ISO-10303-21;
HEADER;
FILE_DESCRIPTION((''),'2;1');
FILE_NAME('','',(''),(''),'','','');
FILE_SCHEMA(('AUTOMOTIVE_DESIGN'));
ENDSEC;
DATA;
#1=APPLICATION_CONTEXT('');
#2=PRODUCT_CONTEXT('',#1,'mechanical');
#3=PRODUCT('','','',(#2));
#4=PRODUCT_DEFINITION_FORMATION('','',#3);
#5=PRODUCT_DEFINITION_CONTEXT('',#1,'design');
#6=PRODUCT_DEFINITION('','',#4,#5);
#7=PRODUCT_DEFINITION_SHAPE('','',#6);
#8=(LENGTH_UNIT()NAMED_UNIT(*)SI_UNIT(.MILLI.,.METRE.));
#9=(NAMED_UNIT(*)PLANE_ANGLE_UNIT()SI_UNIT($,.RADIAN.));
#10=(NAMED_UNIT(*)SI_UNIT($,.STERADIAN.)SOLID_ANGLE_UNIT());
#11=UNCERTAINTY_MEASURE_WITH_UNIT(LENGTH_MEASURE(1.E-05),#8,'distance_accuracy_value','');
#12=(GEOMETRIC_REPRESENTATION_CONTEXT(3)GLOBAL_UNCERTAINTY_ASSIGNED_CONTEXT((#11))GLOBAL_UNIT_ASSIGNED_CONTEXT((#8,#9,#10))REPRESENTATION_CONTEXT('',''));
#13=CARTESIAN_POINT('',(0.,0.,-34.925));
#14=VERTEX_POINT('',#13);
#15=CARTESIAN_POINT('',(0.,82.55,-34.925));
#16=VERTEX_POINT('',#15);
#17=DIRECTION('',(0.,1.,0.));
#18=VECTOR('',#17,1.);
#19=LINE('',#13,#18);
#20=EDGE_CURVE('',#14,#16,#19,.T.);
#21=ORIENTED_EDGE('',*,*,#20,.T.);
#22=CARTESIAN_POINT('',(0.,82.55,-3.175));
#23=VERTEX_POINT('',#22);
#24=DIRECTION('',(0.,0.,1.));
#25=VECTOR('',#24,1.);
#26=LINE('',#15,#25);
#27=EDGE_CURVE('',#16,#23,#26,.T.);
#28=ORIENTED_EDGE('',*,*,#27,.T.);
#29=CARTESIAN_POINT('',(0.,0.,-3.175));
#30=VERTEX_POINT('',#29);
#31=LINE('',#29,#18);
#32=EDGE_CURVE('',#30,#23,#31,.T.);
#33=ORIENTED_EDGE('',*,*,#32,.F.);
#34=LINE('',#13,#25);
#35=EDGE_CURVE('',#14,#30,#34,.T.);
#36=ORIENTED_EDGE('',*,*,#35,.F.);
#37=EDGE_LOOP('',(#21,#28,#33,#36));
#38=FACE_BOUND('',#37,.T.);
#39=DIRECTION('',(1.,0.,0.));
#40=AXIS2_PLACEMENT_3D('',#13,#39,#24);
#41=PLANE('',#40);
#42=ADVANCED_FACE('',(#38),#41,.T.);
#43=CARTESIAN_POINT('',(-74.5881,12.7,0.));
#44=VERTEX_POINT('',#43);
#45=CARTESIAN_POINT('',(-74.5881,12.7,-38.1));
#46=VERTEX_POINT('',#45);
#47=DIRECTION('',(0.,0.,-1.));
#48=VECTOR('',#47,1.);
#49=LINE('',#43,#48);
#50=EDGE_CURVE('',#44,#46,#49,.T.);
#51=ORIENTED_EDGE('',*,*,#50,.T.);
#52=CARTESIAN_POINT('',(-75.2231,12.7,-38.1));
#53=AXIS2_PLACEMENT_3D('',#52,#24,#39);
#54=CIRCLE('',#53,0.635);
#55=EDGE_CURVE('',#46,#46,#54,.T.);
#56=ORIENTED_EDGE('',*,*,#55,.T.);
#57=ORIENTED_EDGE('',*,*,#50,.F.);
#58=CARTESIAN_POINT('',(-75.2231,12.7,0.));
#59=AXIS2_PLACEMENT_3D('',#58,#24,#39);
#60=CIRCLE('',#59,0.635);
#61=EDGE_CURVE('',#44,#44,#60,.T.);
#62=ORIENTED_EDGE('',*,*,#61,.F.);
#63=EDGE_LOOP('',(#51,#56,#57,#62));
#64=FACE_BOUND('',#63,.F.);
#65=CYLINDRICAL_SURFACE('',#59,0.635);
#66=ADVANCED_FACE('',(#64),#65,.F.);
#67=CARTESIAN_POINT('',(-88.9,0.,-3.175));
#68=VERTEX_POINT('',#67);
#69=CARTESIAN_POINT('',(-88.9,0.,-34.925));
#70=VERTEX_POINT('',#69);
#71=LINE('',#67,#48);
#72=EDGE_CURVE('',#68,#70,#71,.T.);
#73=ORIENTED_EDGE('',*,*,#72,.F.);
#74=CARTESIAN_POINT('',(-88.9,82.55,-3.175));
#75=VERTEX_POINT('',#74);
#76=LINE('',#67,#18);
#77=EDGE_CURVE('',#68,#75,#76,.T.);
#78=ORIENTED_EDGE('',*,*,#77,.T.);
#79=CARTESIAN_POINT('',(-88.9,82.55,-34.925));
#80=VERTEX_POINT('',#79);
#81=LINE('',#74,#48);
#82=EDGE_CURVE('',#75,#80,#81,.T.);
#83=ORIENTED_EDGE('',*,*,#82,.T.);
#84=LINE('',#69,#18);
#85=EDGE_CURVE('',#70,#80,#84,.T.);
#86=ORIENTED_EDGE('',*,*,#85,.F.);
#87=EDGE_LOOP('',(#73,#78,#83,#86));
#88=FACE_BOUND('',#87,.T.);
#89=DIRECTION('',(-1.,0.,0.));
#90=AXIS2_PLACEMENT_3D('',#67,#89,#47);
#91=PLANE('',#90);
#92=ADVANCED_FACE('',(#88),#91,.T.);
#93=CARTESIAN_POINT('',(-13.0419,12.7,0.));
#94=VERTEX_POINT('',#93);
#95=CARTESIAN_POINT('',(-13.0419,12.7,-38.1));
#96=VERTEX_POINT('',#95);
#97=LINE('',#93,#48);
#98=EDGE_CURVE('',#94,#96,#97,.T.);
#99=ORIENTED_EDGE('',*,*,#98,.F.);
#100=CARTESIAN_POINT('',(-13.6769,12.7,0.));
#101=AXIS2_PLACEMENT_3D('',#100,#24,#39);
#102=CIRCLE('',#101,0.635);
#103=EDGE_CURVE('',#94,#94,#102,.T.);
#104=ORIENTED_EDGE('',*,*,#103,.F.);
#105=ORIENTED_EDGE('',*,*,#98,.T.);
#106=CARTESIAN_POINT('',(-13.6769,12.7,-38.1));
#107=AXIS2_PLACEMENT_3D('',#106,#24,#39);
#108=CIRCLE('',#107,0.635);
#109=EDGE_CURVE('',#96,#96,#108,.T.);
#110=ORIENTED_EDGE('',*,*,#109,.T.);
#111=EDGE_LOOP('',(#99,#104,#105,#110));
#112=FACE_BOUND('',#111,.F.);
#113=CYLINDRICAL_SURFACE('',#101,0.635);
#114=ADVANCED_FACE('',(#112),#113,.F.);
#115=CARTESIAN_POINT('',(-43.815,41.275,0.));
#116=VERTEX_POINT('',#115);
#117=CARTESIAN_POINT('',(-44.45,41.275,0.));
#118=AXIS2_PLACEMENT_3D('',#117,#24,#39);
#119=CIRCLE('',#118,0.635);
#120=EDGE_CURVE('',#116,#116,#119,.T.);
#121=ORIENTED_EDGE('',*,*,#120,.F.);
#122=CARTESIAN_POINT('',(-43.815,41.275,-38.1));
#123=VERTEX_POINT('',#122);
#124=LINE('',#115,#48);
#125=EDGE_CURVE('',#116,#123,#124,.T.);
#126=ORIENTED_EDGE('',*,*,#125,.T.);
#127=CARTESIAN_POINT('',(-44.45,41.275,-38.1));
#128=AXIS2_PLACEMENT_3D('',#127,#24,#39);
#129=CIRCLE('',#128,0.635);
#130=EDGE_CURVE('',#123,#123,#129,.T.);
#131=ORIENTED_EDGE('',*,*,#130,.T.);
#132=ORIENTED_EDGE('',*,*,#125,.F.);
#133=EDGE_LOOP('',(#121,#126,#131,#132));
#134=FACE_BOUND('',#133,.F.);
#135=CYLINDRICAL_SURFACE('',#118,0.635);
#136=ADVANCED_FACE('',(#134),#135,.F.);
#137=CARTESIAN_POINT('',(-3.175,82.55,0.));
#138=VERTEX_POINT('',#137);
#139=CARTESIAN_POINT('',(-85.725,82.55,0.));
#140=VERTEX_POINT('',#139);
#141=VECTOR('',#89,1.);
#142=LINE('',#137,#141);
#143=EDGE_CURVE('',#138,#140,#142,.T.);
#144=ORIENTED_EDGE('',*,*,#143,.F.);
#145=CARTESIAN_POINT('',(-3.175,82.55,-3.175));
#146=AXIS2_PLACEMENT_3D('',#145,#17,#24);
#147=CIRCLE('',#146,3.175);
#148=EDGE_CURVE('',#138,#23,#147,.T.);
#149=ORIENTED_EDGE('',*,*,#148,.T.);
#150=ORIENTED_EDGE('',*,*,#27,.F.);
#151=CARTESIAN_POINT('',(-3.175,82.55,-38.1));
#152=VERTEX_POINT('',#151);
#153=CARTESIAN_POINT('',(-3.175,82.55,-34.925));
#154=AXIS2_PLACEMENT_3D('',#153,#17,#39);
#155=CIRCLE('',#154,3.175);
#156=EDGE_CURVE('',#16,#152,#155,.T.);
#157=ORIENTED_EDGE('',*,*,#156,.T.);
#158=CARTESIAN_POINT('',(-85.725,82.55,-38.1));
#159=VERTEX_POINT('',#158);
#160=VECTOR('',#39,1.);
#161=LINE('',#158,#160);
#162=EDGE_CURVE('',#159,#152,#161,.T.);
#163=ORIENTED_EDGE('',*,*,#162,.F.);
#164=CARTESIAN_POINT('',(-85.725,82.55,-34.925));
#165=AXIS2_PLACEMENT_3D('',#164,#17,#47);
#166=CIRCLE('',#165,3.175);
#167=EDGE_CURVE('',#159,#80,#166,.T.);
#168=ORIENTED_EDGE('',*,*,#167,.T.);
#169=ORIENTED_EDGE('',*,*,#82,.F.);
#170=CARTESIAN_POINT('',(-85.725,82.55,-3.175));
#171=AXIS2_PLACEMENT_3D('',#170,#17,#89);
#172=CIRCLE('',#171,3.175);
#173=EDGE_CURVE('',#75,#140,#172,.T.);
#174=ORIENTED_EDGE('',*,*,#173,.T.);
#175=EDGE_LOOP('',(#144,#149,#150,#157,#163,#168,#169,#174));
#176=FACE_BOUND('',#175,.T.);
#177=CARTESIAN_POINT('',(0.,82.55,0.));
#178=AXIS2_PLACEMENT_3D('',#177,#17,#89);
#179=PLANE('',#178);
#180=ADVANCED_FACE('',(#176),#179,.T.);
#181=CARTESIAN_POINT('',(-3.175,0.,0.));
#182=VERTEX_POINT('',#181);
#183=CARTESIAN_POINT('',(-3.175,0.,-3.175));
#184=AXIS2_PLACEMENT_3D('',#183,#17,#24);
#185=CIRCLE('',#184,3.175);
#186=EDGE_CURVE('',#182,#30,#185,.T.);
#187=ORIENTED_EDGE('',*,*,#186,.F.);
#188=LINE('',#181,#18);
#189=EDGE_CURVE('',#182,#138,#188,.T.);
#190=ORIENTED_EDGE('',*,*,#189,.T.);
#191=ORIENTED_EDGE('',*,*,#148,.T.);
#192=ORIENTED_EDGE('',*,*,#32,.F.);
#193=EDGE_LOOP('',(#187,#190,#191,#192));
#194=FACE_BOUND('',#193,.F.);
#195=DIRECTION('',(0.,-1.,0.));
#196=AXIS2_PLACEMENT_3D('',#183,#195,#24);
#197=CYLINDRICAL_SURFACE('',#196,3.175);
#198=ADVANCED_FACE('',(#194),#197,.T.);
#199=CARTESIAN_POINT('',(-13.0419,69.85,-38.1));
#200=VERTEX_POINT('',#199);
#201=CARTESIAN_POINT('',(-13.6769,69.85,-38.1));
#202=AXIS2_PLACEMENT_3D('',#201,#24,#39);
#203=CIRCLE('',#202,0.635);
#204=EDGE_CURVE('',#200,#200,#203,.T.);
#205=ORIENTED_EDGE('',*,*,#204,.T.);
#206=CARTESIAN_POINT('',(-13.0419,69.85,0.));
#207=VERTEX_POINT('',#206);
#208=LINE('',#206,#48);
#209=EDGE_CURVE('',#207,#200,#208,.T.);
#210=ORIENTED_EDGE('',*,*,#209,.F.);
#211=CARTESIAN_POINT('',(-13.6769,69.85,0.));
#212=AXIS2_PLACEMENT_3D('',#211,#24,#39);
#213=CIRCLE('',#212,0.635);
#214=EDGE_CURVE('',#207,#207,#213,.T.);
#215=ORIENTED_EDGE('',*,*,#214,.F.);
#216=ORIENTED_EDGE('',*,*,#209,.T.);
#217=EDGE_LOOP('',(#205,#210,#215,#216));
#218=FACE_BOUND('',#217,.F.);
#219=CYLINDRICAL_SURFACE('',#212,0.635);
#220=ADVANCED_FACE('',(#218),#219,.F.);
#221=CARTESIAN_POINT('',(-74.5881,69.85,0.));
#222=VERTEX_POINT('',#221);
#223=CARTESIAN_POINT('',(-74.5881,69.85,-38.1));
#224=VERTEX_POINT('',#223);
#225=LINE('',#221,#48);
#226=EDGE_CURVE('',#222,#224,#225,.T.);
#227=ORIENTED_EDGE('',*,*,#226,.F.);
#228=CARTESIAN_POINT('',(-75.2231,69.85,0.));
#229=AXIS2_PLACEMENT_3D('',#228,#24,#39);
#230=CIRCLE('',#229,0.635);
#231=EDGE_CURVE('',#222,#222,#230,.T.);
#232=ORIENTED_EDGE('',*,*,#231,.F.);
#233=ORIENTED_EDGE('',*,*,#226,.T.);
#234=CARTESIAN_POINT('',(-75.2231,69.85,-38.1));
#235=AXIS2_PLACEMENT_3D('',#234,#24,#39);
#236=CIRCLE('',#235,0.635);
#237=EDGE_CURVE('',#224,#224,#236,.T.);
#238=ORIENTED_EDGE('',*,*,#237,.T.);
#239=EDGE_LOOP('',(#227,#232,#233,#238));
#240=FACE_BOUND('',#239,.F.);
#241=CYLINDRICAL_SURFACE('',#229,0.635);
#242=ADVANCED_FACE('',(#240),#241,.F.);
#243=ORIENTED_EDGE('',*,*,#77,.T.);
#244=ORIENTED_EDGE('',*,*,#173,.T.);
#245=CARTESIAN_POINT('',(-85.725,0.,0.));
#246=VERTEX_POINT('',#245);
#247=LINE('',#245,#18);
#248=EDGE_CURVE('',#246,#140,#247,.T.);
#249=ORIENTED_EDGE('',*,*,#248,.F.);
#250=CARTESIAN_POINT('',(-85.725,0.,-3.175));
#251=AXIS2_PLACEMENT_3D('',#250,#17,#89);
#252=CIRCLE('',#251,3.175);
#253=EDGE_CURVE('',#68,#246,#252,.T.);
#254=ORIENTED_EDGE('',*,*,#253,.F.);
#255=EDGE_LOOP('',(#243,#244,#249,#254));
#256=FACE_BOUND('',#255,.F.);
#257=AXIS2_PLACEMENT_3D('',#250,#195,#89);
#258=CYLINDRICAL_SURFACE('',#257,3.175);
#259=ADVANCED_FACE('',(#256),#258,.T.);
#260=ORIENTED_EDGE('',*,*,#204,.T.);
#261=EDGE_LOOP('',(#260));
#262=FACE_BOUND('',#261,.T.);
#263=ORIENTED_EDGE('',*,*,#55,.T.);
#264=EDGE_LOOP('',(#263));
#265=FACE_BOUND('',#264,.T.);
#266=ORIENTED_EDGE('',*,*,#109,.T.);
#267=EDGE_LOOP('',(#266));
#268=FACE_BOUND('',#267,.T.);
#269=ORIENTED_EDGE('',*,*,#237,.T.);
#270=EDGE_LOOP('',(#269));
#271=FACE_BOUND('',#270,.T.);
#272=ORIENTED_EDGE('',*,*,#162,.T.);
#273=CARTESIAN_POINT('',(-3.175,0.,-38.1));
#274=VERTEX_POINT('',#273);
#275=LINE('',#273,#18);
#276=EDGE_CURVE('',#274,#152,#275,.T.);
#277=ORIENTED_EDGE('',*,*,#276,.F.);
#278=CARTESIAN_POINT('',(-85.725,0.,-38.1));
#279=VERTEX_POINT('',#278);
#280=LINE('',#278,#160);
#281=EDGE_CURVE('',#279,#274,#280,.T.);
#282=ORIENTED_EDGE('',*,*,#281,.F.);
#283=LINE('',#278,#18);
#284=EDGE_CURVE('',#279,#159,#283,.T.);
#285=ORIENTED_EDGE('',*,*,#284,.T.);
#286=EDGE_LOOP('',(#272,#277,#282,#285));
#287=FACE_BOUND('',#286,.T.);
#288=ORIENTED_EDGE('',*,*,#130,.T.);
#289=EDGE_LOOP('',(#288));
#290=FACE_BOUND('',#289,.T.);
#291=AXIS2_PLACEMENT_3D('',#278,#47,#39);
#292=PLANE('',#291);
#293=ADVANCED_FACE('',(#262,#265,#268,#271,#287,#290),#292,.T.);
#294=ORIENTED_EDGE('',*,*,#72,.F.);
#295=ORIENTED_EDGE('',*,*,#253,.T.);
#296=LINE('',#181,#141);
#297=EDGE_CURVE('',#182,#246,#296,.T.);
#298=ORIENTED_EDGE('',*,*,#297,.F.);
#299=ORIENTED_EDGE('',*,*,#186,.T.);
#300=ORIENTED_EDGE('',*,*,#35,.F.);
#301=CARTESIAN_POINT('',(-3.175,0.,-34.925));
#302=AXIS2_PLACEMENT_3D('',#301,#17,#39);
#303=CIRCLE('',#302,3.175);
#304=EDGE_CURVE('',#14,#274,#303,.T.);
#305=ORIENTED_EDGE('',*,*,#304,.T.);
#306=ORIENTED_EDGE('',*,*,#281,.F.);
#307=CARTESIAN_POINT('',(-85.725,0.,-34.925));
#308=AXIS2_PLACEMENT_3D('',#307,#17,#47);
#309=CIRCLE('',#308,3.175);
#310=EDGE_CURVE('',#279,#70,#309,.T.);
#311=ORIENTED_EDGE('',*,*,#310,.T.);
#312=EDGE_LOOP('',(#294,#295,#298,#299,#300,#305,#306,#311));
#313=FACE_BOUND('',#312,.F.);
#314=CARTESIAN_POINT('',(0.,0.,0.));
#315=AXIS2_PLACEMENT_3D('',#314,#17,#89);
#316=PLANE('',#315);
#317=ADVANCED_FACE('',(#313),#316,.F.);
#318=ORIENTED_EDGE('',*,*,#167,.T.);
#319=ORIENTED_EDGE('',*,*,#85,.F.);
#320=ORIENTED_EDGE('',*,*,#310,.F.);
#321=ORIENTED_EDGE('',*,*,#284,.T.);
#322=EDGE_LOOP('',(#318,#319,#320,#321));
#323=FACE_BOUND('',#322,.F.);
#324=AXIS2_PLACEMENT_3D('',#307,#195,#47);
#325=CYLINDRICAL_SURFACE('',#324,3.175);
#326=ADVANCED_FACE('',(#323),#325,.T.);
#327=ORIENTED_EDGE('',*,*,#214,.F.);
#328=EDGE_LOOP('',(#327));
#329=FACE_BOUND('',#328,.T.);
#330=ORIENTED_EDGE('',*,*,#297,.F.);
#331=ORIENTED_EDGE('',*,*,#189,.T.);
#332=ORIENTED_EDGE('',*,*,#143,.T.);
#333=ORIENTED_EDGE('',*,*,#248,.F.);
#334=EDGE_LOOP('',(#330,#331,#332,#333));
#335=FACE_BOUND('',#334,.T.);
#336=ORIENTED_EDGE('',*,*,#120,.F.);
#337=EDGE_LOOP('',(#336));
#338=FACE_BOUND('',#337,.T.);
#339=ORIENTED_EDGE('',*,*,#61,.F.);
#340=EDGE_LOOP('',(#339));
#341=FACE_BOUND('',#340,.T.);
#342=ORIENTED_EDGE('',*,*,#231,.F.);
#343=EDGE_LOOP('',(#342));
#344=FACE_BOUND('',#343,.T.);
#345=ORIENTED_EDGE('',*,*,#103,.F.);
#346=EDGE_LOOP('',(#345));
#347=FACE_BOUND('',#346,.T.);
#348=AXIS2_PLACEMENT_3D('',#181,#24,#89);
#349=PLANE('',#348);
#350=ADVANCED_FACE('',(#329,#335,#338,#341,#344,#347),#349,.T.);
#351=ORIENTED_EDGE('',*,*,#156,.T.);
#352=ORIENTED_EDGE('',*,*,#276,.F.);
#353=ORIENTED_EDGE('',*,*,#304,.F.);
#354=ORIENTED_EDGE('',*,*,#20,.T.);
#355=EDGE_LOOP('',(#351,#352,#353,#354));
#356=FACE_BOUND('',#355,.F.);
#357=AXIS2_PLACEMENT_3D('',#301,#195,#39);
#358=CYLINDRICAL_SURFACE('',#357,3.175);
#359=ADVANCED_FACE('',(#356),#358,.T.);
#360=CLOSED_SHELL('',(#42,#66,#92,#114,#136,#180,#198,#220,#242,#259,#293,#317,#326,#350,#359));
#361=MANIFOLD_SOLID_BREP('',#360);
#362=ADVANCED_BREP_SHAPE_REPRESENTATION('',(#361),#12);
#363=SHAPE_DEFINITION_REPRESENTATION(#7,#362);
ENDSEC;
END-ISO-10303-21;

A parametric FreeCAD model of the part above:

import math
import FreeCAD as App
import Part
import Sketcher
Q = App.Units.Quantity

doc = App.newDocument("Part")
body = doc.addObject("PartDesign::Body", "Body")

sketch1 = doc.addObject("Sketcher::SketchObject", "Sketch")
body.addObject(sketch1)
sketch1.AttachmentSupport = (doc.XZ_Plane, [""])
sketch1.MapMode = "FlatFace"
sketch1.addGeometry([
    Part.LineSegment(App.Vector(-85.7, 0, 0), App.Vector(-3.2, 0, 0)),
    Part.ArcOfCircle(Part.Circle(App.Vector(-3.2, -3.2, 0), App.Vector(0, 0, 1), 3.2), math.radians(0), math.radians(90)),
    Part.LineSegment(App.Vector(0, -3.2, 0), App.Vector(0, -34.9, 0)),
    Part.ArcOfCircle(Part.Circle(App.Vector(-3.2, -34.9, 0), App.Vector(0, 0, 1), 3.2), math.radians(-90), math.radians(0)),
    Part.LineSegment(App.Vector(-3.2, -38.1, 0), App.Vector(-85.7, -38.1, 0)),
    Part.ArcOfCircle(Part.Circle(App.Vector(-85.7, -34.9, 0), App.Vector(0, 0, 1), 3.2), math.radians(180), math.radians(270)),
    Part.LineSegment(App.Vector(-88.9, -34.9, 0), App.Vector(-88.9, -3.2, 0)),
    Part.ArcOfCircle(Part.Circle(App.Vector(-85.7, -3.2, 0), App.Vector(0, 0, 1), 3.2), math.radians(90), math.radians(180)),
], False)
sketch1.addConstraint([
    Sketcher.Constraint("Tangent", 0, 2, 1, 2),
    Sketcher.Constraint("Tangent", 1, 1, 2, 1),
    Sketcher.Constraint("Tangent", 2, 2, 3, 2),
    Sketcher.Constraint("Tangent", 3, 1, 4, 1),
    Sketcher.Constraint("Tangent", 4, 2, 5, 2),
    Sketcher.Constraint("Tangent", 5, 1, 6, 1),
    Sketcher.Constraint("Tangent", 6, 2, 7, 2),
    Sketcher.Constraint("Tangent", 7, 1, 0, 1),
    Sketcher.Constraint("Horizontal", 0),
    Sketcher.Constraint("Vertical", 2),
    Sketcher.Constraint("Horizontal", 4),
    Sketcher.Constraint("Vertical", 6),
    Sketcher.Constraint("Equal", 1, 3),
    Sketcher.Constraint("Equal", 3, 5),
    Sketcher.Constraint("Equal", 5, 7),
    Sketcher.Constraint("PointOnObject", 0, 2, -1),
    Sketcher.Constraint("PointOnObject", 1, 1, -2),
    Sketcher.Constraint("Radius", 1, Q("0.125 in")),
    Sketcher.Constraint("DistanceY", 3, 1, -1, 1, Q("1.5 in")),
    Sketcher.Constraint("DistanceX", 5, 1, -1, 1, Q("3.5 in")),
])
pad1 = doc.addObject("PartDesign::Pad", "Pad")
body.addObject(pad1)
pad1.Profile = sketch1
pad1.Length = Q("3.25 in")
pad1.Reversed = True

sketch2 = doc.addObject("Sketcher::SketchObject", "Sketch001")
body.addObject(sketch2)
sketch2.AttachmentSupport = (doc.XY_Plane, [""])
sketch2.MapMode = "FlatFace"
sketch2.addGeometry([
    Part.Circle(App.Vector(-75.2, 12.7, 0), App.Vector(0, 0, 1), 0.6),
    Part.Circle(App.Vector(-75.2, 69.8, 0), App.Vector(0, 0, 1), 0.6),
    Part.Circle(App.Vector(-13.7, 69.8, 0), App.Vector(0, 0, 1), 0.6),
    Part.Circle(App.Vector(-13.7, 12.7, 0), App.Vector(0, 0, 1), 0.6),
    Part.Circle(App.Vector(-44.5, 41.3, 0), App.Vector(0, 0, 1), 0.6),
], False)
sketch2.addConstraint([
    Sketcher.Constraint("Equal", 0, 1),
    Sketcher.Constraint("Equal", 1, 2),
    Sketcher.Constraint("Equal", 2, 3),
    Sketcher.Constraint("Equal", 3, 4),
    Sketcher.Constraint("Horizontal", 1, 3, 2, 3),
    Sketcher.Constraint("Horizontal", 0, 3, 3, 3),
    Sketcher.Constraint("Vertical", 0, 3, 1, 3),
    Sketcher.Constraint("Vertical", 2, 3, 3, 3),
    Sketcher.Constraint("Diameter", 0, Q("0.05 in")),
    Sketcher.Constraint("DistanceY", -1, 1, 0, 3, Q("0.5 in")),
    Sketcher.Constraint("DistanceY", -1, 1, 1, 3, Q("2.75 in")),
    Sketcher.Constraint("DistanceX", 4, 3, -1, 1, Q("1.75 in")),
    Sketcher.Constraint("DistanceY", -1, 1, 4, 3, Q("1.625 in")),
    Sketcher.Constraint("DistanceX", 0, 3, -1, 1, Q("75.223 mm")),
    Sketcher.Constraint("DistanceX", 2, 3, -1, 1, Q("13.677 mm")),
])
pocket1 = doc.addObject("PartDesign::Pocket", "Pocket")
body.addObject(pocket1)
pocket1.Profile = sketch2
pocket1.Type = "ThroughAll"

doc.recompute()
